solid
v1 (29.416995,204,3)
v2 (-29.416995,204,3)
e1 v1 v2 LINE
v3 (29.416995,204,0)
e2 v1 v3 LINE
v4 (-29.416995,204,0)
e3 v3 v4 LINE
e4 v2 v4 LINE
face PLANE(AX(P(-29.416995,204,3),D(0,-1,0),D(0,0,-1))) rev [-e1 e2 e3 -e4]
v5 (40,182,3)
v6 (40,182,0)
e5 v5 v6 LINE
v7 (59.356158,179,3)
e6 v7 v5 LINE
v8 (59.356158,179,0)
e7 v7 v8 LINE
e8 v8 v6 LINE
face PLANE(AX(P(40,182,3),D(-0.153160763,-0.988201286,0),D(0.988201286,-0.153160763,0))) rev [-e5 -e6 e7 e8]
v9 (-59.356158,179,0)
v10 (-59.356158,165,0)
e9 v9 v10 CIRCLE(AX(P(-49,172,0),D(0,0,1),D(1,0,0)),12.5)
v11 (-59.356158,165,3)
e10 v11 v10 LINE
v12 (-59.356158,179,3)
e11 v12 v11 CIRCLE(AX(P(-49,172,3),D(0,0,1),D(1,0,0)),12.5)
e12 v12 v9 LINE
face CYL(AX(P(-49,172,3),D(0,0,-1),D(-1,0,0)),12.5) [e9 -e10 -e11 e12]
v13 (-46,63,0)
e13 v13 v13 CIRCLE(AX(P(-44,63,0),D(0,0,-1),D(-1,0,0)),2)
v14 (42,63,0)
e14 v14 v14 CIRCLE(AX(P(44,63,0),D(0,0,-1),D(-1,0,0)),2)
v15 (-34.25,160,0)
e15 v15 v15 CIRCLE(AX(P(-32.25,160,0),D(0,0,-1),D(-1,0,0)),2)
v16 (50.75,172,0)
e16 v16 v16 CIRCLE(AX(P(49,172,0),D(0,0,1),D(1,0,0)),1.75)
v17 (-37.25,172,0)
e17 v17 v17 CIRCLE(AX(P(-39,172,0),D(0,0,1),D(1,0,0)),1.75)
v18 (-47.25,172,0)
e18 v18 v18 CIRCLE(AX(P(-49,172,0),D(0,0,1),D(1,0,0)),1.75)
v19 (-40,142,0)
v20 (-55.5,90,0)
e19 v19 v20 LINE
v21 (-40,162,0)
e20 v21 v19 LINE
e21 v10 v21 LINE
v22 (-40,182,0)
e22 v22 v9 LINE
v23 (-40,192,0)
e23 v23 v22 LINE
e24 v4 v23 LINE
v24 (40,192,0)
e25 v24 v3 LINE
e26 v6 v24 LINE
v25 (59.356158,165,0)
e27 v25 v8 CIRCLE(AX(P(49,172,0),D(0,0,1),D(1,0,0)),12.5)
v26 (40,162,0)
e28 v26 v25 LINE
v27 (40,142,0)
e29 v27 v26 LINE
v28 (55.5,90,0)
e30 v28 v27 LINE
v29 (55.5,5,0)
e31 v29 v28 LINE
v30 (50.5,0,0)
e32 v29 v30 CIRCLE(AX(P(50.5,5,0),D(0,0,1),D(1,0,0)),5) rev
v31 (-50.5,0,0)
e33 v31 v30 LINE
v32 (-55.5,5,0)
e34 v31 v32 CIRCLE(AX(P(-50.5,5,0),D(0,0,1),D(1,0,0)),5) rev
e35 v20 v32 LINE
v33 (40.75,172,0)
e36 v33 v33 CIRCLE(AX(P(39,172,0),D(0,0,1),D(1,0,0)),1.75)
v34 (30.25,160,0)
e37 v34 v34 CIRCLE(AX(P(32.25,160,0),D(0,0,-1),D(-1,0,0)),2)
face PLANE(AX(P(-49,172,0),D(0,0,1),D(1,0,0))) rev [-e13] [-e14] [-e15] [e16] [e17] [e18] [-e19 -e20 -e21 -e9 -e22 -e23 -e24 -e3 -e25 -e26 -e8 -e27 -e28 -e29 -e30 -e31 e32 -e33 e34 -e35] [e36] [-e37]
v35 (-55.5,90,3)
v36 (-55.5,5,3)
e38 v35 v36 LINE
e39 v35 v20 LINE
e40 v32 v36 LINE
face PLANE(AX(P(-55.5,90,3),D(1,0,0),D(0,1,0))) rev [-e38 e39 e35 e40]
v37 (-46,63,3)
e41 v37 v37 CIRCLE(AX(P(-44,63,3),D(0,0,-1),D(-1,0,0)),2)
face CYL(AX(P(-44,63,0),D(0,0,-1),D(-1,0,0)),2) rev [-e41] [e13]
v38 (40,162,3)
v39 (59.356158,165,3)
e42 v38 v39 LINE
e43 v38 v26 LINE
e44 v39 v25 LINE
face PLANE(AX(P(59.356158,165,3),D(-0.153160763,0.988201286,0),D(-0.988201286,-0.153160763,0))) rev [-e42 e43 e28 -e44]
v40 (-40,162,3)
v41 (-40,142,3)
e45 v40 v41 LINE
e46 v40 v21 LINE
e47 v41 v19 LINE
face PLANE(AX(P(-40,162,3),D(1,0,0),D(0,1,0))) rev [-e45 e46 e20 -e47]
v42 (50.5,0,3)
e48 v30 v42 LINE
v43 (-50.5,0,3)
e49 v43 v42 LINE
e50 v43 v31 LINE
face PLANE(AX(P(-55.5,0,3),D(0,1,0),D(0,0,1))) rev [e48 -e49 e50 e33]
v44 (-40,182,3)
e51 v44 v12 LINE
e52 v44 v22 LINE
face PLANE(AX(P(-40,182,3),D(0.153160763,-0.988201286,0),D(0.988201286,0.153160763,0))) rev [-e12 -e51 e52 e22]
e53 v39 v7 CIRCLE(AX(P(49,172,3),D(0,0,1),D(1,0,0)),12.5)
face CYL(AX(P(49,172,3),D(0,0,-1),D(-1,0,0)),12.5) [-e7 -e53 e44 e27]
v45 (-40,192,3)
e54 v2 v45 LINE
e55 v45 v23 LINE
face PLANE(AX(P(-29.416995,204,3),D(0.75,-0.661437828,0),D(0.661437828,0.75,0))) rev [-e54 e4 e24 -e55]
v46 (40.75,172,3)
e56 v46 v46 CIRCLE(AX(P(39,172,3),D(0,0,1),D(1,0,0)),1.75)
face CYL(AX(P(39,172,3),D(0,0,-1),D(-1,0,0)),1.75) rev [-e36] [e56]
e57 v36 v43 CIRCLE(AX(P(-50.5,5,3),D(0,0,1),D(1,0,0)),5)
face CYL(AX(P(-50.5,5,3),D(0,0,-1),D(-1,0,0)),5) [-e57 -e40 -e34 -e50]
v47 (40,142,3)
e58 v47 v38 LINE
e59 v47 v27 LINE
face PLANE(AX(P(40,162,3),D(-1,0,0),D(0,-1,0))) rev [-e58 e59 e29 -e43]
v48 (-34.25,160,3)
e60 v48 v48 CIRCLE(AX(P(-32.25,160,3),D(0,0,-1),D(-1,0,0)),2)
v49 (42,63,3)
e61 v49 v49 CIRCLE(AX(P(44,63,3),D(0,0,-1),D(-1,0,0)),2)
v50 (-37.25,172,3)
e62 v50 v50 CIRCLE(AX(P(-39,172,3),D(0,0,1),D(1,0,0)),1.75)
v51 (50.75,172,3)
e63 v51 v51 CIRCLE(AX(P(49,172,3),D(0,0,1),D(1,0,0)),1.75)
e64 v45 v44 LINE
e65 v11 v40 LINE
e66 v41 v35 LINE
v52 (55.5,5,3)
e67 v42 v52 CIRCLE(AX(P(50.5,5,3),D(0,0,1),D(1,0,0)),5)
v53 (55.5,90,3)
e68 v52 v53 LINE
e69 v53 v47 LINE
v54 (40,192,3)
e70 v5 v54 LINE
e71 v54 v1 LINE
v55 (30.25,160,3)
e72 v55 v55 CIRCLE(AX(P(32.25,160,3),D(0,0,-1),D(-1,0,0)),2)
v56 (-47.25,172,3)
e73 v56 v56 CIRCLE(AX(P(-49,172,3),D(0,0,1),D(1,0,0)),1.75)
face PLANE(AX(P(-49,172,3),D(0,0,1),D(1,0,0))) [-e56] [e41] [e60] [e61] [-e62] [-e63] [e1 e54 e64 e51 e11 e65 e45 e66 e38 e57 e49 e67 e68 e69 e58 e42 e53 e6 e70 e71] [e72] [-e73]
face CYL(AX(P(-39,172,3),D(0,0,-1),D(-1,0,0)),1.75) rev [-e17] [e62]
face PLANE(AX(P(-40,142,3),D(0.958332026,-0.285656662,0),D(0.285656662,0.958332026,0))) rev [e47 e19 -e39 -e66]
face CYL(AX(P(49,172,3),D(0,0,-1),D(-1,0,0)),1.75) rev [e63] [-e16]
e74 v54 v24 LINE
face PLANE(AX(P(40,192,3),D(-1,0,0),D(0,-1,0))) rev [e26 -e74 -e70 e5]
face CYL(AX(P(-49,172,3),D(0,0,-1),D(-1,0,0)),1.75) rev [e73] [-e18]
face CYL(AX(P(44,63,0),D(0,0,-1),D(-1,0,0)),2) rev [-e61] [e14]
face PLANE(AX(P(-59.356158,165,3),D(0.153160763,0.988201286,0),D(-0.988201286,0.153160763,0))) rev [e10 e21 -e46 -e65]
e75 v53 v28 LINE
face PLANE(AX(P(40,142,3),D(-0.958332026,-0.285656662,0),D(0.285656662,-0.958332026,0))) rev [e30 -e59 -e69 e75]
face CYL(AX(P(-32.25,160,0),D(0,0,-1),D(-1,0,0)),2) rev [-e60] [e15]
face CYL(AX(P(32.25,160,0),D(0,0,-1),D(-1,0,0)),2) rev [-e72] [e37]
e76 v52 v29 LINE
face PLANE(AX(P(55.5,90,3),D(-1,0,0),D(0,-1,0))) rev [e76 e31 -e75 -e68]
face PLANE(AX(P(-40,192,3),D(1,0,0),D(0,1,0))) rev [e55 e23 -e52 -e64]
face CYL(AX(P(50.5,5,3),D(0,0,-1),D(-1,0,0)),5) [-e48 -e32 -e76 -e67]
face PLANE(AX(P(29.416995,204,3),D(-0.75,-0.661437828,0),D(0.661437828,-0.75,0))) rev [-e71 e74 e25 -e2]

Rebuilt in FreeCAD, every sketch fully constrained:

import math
import FreeCAD as App
import Part
import Sketcher
from FreeCAD import Vector


def edges_at(feature, points):
    """Names of the edges that pass closest to the given points."""
    edges = feature.Shape.Edges
    near = lambda p: min(range(len(edges)), key=lambda i: edges[i].distToShape(Part.Vertex(*p))[0])
    return sorted({f"Edge{near(p) + 1}" for p in points})

doc = App.newDocument("Part")
params = doc.addObject("Spreadsheet::Sheet", "Params")
for row, (alias, value) in enumerate([
    ("sketch1_diameter", "3.5 mm"),
    ("sketch1_radius", "12.5 mm"),
    ("sketch1_width", "111 mm"),
    ("sketch1_height", "10 mm"),
    ("sketch1_height2", "20 mm"),
    ("pad1_length", "3 mm"),
    ("fillet_radius", "5 mm"),
    ("sketch2_diameter", "4 mm"),
    ("hole_diameter", "4 mm"),
], start=1):
    params.set(f"A{row}", alias)
    params.set(f"B{row}", "=" + value)
    params.setAlias(f"B{row}", alias)

body = doc.addObject("PartDesign::Body", "Body")

# Sketch on XY plane
sketch1 = body.newObject("Sketcher::SketchObject", "Sketch")
sketch1.AttachmentSupport = (doc.getObject("XY_Plane"), [""])
sketch1.MapMode = "FlatFace"
sketch1.addGeometry([
    Part.LineSegment(Vector(29.4, 204, 0), Vector(-29.4, 204, 0)),  # 0
    Part.LineSegment(Vector(-29.4, 204, 0), Vector(-40, 192, 0)),  # 1
    Part.LineSegment(Vector(-40, 192, 0), Vector(-40, 182, 0)),  # 2
    Part.LineSegment(Vector(-40, 182, 0), Vector(-59.4, 179, 0)),  # 3
    Part.ArcOfCircle(Part.Circle(Vector(-49, 172, 0), Vector(0, 0, 1), 12.5), math.radians(146), math.radians(214)),  # 4
    Part.LineSegment(Vector(-59.4, 165, 0), Vector(-40, 162, 0)),  # 5
    Part.LineSegment(Vector(-40, 162, 0), Vector(-40, 142, 0)),  # 6
    Part.LineSegment(Vector(-40, 142, 0), Vector(-55.5, 90, 0)),  # 7
    Part.LineSegment(Vector(-55.5, 90, 0), Vector(-55.5, 0, 0)),  # 8
    Part.LineSegment(Vector(-55.5, 0, 0), Vector(55.5, 0, 0)),  # 9
    Part.LineSegment(Vector(55.5, 0, 0), Vector(55.5, 90, 0)),  # 10
    Part.LineSegment(Vector(55.5, 90, 0), Vector(40, 142, 0)),  # 11
    Part.LineSegment(Vector(40, 142, 0), Vector(40, 162, 0)),  # 12
    Part.LineSegment(Vector(40, 162, 0), Vector(59.4, 165, 0)),  # 13
    Part.ArcOfCircle(Part.Circle(Vector(49, 172, 0), Vector(0, 0, 1), 12.5), math.radians(-34), math.radians(34)),  # 14
    Part.LineSegment(Vector(59.4, 179, 0), Vector(40, 182, 0)),  # 15
    Part.LineSegment(Vector(40, 182, 0), Vector(40, 192, 0)),  # 16
    Part.LineSegment(Vector(40, 192, 0), Vector(29.4, 204, 0)),  # 17
    Part.Circle(Vector(49, 172, 0), Vector(0, 0, 1), 1.8),  # 18
    Part.Circle(Vector(39, 172, 0), Vector(0, 0, 1), 1.8),  # 19
    Part.Circle(Vector(-39, 172, 0), Vector(0, 0, 1), 1.8),  # 20
    Part.Circle(Vector(-49, 172, 0), Vector(0, 0, 1), 1.8),  # 21
], False)
sketch1.addConstraint([
    Sketcher.Constraint("Coincident", 0, 2, 1, 1),
    Sketcher.Constraint("Coincident", 1, 2, 2, 1),
    Sketcher.Constraint("Coincident", 2, 2, 3, 1),
    Sketcher.Constraint("Coincident", 3, 2, 4, 1),
    Sketcher.Constraint("Coincident", 4, 2, 5, 1),
    Sketcher.Constraint("Coincident", 5, 2, 6, 1),
    Sketcher.Constraint("Coincident", 6, 2, 7, 1),
    Sketcher.Constraint("Coincident", 7, 2, 8, 1),
    Sketcher.Constraint("Coincident", 8, 2, 9, 1),
    Sketcher.Constraint("Coincident", 9, 2, 10, 1),
    Sketcher.Constraint("Coincident", 10, 2, 11, 1),
    Sketcher.Constraint("Coincident", 11, 2, 12, 1),
    Sketcher.Constraint("Coincident", 12, 2, 13, 1),
    Sketcher.Constraint("Coincident", 13, 2, 14, 1),
    Sketcher.Constraint("Coincident", 14, 2, 15, 1),
    Sketcher.Constraint("Coincident", 15, 2, 16, 1),
    Sketcher.Constraint("Coincident", 16, 2, 17, 1),
    Sketcher.Constraint("Coincident", 17, 2, 0, 1),
    Sketcher.Constraint("Horizontal", 0),
    Sketcher.Constraint("Vertical", 2),
    Sketcher.Constraint("Vertical", 6),
    Sketcher.Constraint("Vertical", 8),
    Sketcher.Constraint("Horizontal", 9),
    Sketcher.Constraint("Vertical", 10),
    Sketcher.Constraint("Vertical", 12),
    Sketcher.Constraint("Vertical", 16),
    Sketcher.Constraint("Coincident", 18, 3, 14, 3),
    Sketcher.Constraint("Coincident", 21, 3, 4, 3),
    Sketcher.Constraint("Equal", 4, 14),
    Sketcher.Constraint("Equal", 18, 19),
    Sketcher.Constraint("Equal", 19, 20),
    Sketcher.Constraint("Equal", 20, 21),
    Sketcher.Constraint("Symmetric", 8, 2, 9, 2, -1, 1),
    Sketcher.Constraint("Symmetric", 4, 3, 14, 3, -2),
    Sketcher.Constraint("Symmetric", 19, 3, 20, 3, -2),
    Sketcher.Constraint("Symmetric", 6, 2, 11, 2, -2),
    Sketcher.Constraint("Symmetric", 2, 2, 15, 2, -2),
    Sketcher.Constraint("Parallel", 3, 13),
    Sketcher.Constraint("Parallel", 5, 15),
    Sketcher.Constraint("Horizontal", 18, 3, 19, 3),
    Sketcher.Constraint("Horizontal", 7, 2, 10, 2),
    Sketcher.Constraint("Horizontal", 5, 2, 12, 2),
    Sketcher.Constraint("Horizontal", 4, 2, 13, 2),
    Sketcher.Constraint("Horizontal", 1, 2, 16, 2),
    Sketcher.Constraint("Vertical", 3, 2, 4, 2),
    Sketcher.Constraint("Vertical", 2, 2, 5, 2),
    Sketcher.Constraint("Equal", 1, 17),
    Sketcher.Constraint("Diameter", 18, 3.5),
    Sketcher.Constraint("Radius", 4, 12.5),
    Sketcher.Constraint("DistanceX", 9, 1, 9, 2, 111.0),
    Sketcher.Constraint("DistanceY", 2, 2, 2, 1, 10.0),
    Sketcher.Constraint("DistanceY", 6, 2, 6, 1, 20.0),
    Sketcher.Constraint("DistanceY", 8, 2, 8, 1, 90.0),
    Sketcher.Constraint("Distance", 1, 16.0),
    Sketcher.Constraint("DistanceX", 4, 3, -1, 1, 49.0),
    Sketcher.Constraint("DistanceY", -1, 1, 4, 3, 172.0),
    Sketcher.Constraint("DistanceX", -1, 1, 19, 3, 39.0),
    Sketcher.Constraint("DistanceY", -1, 1, 0, 2, 204.0),
    Sketcher.Constraint("DistanceX", 1, 2, -1, 1, 40.0),
    Sketcher.Constraint("DistanceY", -1, 1, 1, 2, 192.0),
    Sketcher.Constraint("DistanceY", -1, 1, 3, 2, 179.0),
])
sketch1.setExpression("Constraints[47]", "Params.sketch1_diameter")
sketch1.setExpression("Constraints[48]", "Params.sketch1_radius")
sketch1.setExpression("Constraints[49]", "Params.sketch1_width")
sketch1.setExpression("Constraints[50]", "Params.sketch1_height")
sketch1.setExpression("Constraints[51]", "Params.sketch1_height2")
pad1 = body.newObject("PartDesign::Pad", "Pad")
pad1.Profile = sketch1
pad1.setExpression("Length", "Params.pad1_length")
doc.recompute()

fillet = body.newObject("PartDesign::Fillet", "Fillet")
fillet.Base = (pad1, edges_at(pad1, [(55.5, 0, 1.5), (-55.5, 0, 1.5)]))
fillet.setExpression("Radius", "Params.fillet_radius")

# Sketch on XY plane
sketch2 = body.newObject("Sketcher::SketchObject", "Sketch001")
sketch2.AttachmentSupport = (doc.getObject("XY_Plane"), [""])
sketch2.MapMode = "FlatFace"
sketch2.addGeometry([
    Part.Circle(Vector(32.2, 160, 0), Vector(0, 0, 1), 2),
    Part.Circle(Vector(-32.2, 160, 0), Vector(0, 0, 1), 2),
    Part.Circle(Vector(-44, 63, 0), Vector(0, 0, 1), 2),
    Part.Circle(Vector(44, 63, 0), Vector(0, 0, 1), 2),
], False)
sketch2.addConstraint([
    Sketcher.Constraint("Equal", 0, 1),
    Sketcher.Constraint("Equal", 1, 2),
    Sketcher.Constraint("Equal", 2, 3),
    Sketcher.Constraint("Symmetric", 0, 3, 1, 3, -2),
    Sketcher.Constraint("Symmetric", 2, 3, 3, 3, -2),
    Sketcher.Constraint("Diameter", 0, 4.0),
    Sketcher.Constraint("DistanceY", -1, 1, 0, 3, 160.0),
    Sketcher.Constraint("DistanceX", 2, 3, -1, 1, 44.0),
    Sketcher.Constraint("DistanceY", -1, 1, 2, 3, 63.0),
    Sketcher.Constraint("DistanceX", 1, 3, 0, 3, 64.5),
])
sketch2.setExpression("Constraints[5]", "Params.sketch2_diameter")
doc.recompute()
hole = body.newObject("PartDesign::Hole", "Hole")
hole.Profile = sketch2
hole.ThreadType = "None"
hole.setExpression("Diameter", "Params.hole_diameter")
hole.DepthType = "ThroughAll"
hole.Reversed = True

doc.recompute()
